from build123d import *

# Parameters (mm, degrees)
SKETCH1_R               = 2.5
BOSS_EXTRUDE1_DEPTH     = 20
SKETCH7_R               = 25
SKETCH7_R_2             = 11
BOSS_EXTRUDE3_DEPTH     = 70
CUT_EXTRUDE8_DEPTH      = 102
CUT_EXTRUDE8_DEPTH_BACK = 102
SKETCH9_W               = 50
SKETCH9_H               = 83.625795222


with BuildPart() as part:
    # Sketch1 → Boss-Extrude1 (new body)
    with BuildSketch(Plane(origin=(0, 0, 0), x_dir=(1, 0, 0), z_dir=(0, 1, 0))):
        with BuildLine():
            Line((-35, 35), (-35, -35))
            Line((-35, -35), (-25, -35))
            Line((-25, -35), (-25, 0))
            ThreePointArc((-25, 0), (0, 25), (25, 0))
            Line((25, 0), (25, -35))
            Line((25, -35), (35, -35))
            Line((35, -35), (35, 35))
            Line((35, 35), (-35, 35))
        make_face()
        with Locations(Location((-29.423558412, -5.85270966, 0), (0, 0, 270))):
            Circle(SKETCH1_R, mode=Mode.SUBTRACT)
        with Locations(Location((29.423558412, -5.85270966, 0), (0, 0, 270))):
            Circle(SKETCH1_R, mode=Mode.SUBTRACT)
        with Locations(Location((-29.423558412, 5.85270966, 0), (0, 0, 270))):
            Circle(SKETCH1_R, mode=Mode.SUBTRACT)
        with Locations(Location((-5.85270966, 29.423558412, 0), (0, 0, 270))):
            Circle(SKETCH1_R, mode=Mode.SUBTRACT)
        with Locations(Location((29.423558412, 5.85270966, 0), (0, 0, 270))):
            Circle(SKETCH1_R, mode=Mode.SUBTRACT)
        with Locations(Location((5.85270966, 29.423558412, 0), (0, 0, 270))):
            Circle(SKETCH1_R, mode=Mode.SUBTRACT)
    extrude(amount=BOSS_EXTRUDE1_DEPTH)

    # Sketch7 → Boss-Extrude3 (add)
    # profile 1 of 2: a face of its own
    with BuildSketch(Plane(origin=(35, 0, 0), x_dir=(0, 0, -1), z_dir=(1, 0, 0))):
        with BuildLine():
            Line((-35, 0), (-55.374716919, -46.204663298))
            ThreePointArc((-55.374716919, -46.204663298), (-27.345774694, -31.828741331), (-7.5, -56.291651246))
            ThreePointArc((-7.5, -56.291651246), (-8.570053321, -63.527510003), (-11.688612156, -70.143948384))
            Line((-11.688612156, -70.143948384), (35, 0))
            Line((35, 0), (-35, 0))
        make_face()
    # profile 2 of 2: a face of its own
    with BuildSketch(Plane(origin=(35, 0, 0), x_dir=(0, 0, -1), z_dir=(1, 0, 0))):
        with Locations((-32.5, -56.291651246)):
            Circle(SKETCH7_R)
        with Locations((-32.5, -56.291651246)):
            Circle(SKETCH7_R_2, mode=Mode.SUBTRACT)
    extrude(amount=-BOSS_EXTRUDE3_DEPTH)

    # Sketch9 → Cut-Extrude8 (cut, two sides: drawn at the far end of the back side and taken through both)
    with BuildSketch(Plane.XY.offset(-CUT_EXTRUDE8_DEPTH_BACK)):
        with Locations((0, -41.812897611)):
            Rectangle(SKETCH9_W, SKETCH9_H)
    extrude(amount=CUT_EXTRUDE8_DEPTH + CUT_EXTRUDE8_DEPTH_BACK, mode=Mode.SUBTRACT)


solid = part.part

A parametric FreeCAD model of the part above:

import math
import FreeCAD as App
import Part
import Sketcher
Q = App.Units.Quantity


def add_polygon(sketch, points):
    """Adds a closed chain of lines whose ends are joined by coincident constraints."""
    first, n = sketch.GeometryCount, len(points)
    for a, b in zip(points, points[1:] + points[:1]):
        sketch.addGeometry(Part.LineSegment(App.Vector(*a, 0), App.Vector(*b, 0)), False)
    for i in range(n):
        sketch.addConstraint(Sketcher.Constraint("Coincident", first + i, 2, first + (i + 1) % n, 1))

doc = App.newDocument("Part")
body = doc.addObject("PartDesign::Body", "Body")

# Sketch on XZ plane
sketch1 = body.newObject("Sketcher::SketchObject", "Sketch")
sketch1.AttachmentSupport = (doc.getObject("XZ_Plane"), [""])
sketch1.MapMode = "FlatFace"
sketch1.addGeometry([
    Part.LineSegment(App.Vector(-35, -35, 0), App.Vector(-35, 35, 0)),  # 0
    Part.LineSegment(App.Vector(-35, 35, 0), App.Vector(-25, 35, 0)),  # 1
    Part.LineSegment(App.Vector(-25, 35, 0), App.Vector(-25, 0, 0)),  # 2
    Part.ArcOfCircle(Part.Circle(App.Vector(0, 0, 0), App.Vector(0, 0, 1), 25), math.radians(180), math.radians(360)),  # 3
    Part.LineSegment(App.Vector(25, 0, 0), App.Vector(25, 35, 0)),  # 4
    Part.LineSegment(App.Vector(25, 35, 0), App.Vector(35, 35, 0)),  # 5
    Part.LineSegment(App.Vector(35, 35, 0), App.Vector(35, -35, 0)),  # 6
    Part.LineSegment(App.Vector(35, -35, 0), App.Vector(-35, -35, 0)),  # 7
    Part.Circle(App.Vector(-29.4, 5.9, 0), App.Vector(0, 0, 1), 2.5),  # 8
    Part.Circle(App.Vector(-29.4, -5.9, 0), App.Vector(0, 0, 1), 2.5),  # 9
    Part.Circle(App.Vector(29.4, 5.9, 0), App.Vector(0, 0, 1), 2.5),  # 10
    Part.Circle(App.Vector(29.4, -5.9, 0), App.Vector(0, 0, 1), 2.5),  # 11
    Part.Circle(App.Vector(-5.9, -29.4, 0), App.Vector(0, 0, 1), 2.5),  # 12
    Part.Circle(App.Vector(5.9, -29.4, 0), App.Vector(0, 0, 1), 2.5),  # 13
], False)
sketch1.addConstraint([
    Sketcher.Constraint("Coincident", 0, 2, 1, 1),
    Sketcher.Constraint("Coincident", 1, 2, 2, 1),
    Sketcher.Constraint("Tangent", 2, 2, 3, 1),
    Sketcher.Constraint("Tangent", 3, 2, 4, 1),
    Sketcher.Constraint("Coincident", 4, 2, 5, 1),
    Sketcher.Constraint("Coincident", 5, 2, 6, 1),
    Sketcher.Constraint("Coincident", 6, 2, 7, 1),
    Sketcher.Constraint("Coincident", 7, 2, 0, 1),
    Sketcher.Constraint("Vertical", 0),
    Sketcher.Constraint("Horizontal", 1),
    Sketcher.Constraint("Vertical", 2),
    Sketcher.Constraint("Vertical", 4),
    Sketcher.Constraint("Horizontal", 5),
    Sketcher.Constraint("Vertical", 6),
    Sketcher.Constraint("Horizontal", 7),
    Sketcher.Constraint("Coincident", 3, 3, -1, 1),
    Sketcher.Constraint("Equal", 8, 9),
    Sketcher.Constraint("Equal", 9, 10),
    Sketcher.Constraint("Equal", 10, 11),
    Sketcher.Constraint("Equal", 11, 12),
    Sketcher.Constraint("Equal", 12, 13),
    Sketcher.Constraint("Symmetric", 9, 3, 10, 3, -1, 1),
    Sketcher.Constraint("Symmetric", 8, 3, 11, 3, -1, 1),
    Sketcher.Constraint("Symmetric", 0, 2, 6, 2, -1, 1),
    Sketcher.Constraint("Symmetric", 8, 3, 10, 3, -2),
    Sketcher.Constraint("Symmetric", 12, 3, 13, 3, -2),
    Sketcher.Constraint("Horizontal", 1, 2, 4, 2),
    Sketcher.Constraint("Equal", 7, 0),
    Sketcher.Constraint("Diameter", 8, Q("5 mm")),
    Sketcher.Constraint("Radius", 3, Q("25 mm")),
    Sketcher.Constraint("DistanceX", 1, 1, 1, 2, Q("10 mm")),
    Sketcher.Constraint("DistanceX", 8, 3, -1, 1, Q("29.423558 mm")),
    Sketcher.Constraint("DistanceY", -1, 1, 8, 3, Q("5.85271 mm")),
    Sketcher.Constraint("DistanceX", 12, 3, -1, 1, Q("5.85271 mm")),
    Sketcher.Constraint("DistanceY", 12, 3, -1, 1, Q("29.423558 mm")),
])
pad1 = body.newObject("PartDesign::Pad", "Pad")
pad1.Profile = sketch1
pad1.Length = 20
pad1.Reversed = True

# Sketch on YZ plane
sketch2 = body.newObject("Sketcher::SketchObject", "Sketch001")
sketch2.AttachmentSupport = (doc.getObject("YZ_Plane"), [""])
sketch2.MapMode = "FlatFace"
sketch2.AttachmentOffset = App.Placement(App.Vector(0, 0, 35), App.Rotation())
sketch2.addGeometry([
    Part.LineSegment(App.Vector(0, 35, 0), App.Vector(-46, 55, 0)),  # 0
    Part.ArcOfCircle(Part.Circle(App.Vector(-56, 32, 0), App.Vector(0, 0, 1), 25), math.radians(66), math.radians(236)),  # 1
    Part.LineSegment(App.Vector(-70, 12, 0), App.Vector(0, -35, 0)),  # 2
    Part.LineSegment(App.Vector(0, -35, 0), App.Vector(0, 35, 0)),  # 3
    Part.Circle(App.Vector(-56, 32, 0), App.Vector(0, 0, 1), 11),  # 4
], False)
sketch2.addConstraint([
    Sketcher.Constraint("Tangent", 0, 2, 1, 1),
    Sketcher.Constraint("Tangent", 1, 2, 2, 1),
    Sketcher.Constraint("Coincident", 2, 2, 3, 1),
    Sketcher.Constraint("Coincident", 3, 2, 0, 1),
    Sketcher.Constraint("Vertical", 3),
    Sketcher.Constraint("Coincident", 4, 3, 1, 3),
    Sketcher.Constraint("Symmetric", 2, 2, 3, 2, -1, 1),
    Sketcher.Constraint("Diameter", 4, Q("22 mm")),
    Sketcher.Constraint("Radius", 1, Q("25 mm")),
    Sketcher.Constraint("DistanceY", 3, 1, 3, 2, Q("70 mm")),
    Sketcher.Constraint("DistanceY", -1, 1, 1, 3, Q("32.5 mm")),
    Sketcher.Constraint("DistanceX", 1, 3, -1, 1, Q("56.291651 mm")),
])
pad2 = body.newObject("PartDesign::Pad", "Pad001")
pad2.Profile = sketch2
pad2.Length = 70
pad2.Reversed = True

# Sketch on XY plane
sketch3 = body.newObject("Sketcher::SketchObject", "Sketch002")
sketch3.AttachmentSupport = (doc.getObject("XY_Plane"), [""])
sketch3.MapMode = "FlatFace"
add_polygon(sketch3, [(-25, 0), (-25, -84), (25, -84), (25, 0)])  # lines 0-3
sketch3.addConstraint([
    Sketcher.Constraint("Vertical", 0),
    Sketcher.Constraint("Horizontal", 1),
    Sketcher.Constraint("Vertical", 2),
    Sketcher.Constraint("Horizontal", 3),
    Sketcher.Constraint("Symmetric", 2, 2, 3, 2, -1, 1),
    Sketcher.Constraint("DistanceX", 1, 1, 1, 2, Q("50 mm")),
    Sketcher.Constraint("DistanceY", 0, 2, 0, 1, Q("83.625795 mm")),
])
pocket1 = body.newObject("PartDesign::Pocket", "Pocket")
pocket1.Profile = sketch3
pocket1.Type = "ThroughAll"
pocket1.Midplane = True

doc.recompute()
